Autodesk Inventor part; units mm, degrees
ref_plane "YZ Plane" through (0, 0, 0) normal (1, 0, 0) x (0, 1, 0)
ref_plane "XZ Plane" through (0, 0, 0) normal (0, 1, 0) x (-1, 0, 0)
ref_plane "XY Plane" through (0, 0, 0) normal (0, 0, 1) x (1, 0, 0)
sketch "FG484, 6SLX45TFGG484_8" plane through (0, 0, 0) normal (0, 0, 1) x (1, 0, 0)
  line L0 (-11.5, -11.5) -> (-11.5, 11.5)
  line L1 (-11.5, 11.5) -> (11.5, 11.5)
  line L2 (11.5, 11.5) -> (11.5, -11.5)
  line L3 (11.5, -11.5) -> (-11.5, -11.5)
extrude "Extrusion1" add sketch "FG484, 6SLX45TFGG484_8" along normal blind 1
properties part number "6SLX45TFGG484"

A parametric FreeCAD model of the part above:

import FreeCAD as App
import Part
import Sketcher

V = App.Vector


def add_polygon(sketch, points):
    """Adds a closed chain of lines whose ends are joined by coincident constraints."""
    first, n = sketch.GeometryCount, len(points)
    for a, b in zip(points, points[1:] + points[:1]):
        sketch.addGeometry(Part.LineSegment(App.Vector(*a, 0), App.Vector(*b, 0)), False)
    for i in range(n):
        sketch.addConstraint(Sketcher.Constraint("Coincident", first + i, 2, first + (i + 1) % n, 1))

doc = App.newDocument("Part")
body = doc.addObject("PartDesign::Body", "Body")

sketch1 = body.newObject("Sketcher::SketchObject", "Sketch")
sketch1.AttachmentSupport = (doc.getObject("XY_Plane"), [""])
sketch1.MapMode = "FlatFace"
add_polygon(sketch1, [(-12, 12), (-12, -12), (12, -12), (12, 12)])
sketch1.addConstraint(Sketcher.Constraint("Vertical", 0))
sketch1.addConstraint(Sketcher.Constraint("Horizontal", 1))
sketch1.addConstraint(Sketcher.Constraint("Vertical", 2))
sketch1.addConstraint(Sketcher.Constraint("Horizontal", 3))
sketch1.addConstraint(Sketcher.Constraint("Symmetric", 0, 2, 2, 2, -1, 1))
sketch1.addConstraint(Sketcher.Constraint("Equal", 3, 0))
sketch1.addConstraint(Sketcher.Constraint("DistanceX", 1, 1, 1, 2, 23.0))
pad1 = body.newObject("PartDesign::Pad", "Pad")
pad1.Profile = sketch1
pad1.Length = 1

doc.recompute()
